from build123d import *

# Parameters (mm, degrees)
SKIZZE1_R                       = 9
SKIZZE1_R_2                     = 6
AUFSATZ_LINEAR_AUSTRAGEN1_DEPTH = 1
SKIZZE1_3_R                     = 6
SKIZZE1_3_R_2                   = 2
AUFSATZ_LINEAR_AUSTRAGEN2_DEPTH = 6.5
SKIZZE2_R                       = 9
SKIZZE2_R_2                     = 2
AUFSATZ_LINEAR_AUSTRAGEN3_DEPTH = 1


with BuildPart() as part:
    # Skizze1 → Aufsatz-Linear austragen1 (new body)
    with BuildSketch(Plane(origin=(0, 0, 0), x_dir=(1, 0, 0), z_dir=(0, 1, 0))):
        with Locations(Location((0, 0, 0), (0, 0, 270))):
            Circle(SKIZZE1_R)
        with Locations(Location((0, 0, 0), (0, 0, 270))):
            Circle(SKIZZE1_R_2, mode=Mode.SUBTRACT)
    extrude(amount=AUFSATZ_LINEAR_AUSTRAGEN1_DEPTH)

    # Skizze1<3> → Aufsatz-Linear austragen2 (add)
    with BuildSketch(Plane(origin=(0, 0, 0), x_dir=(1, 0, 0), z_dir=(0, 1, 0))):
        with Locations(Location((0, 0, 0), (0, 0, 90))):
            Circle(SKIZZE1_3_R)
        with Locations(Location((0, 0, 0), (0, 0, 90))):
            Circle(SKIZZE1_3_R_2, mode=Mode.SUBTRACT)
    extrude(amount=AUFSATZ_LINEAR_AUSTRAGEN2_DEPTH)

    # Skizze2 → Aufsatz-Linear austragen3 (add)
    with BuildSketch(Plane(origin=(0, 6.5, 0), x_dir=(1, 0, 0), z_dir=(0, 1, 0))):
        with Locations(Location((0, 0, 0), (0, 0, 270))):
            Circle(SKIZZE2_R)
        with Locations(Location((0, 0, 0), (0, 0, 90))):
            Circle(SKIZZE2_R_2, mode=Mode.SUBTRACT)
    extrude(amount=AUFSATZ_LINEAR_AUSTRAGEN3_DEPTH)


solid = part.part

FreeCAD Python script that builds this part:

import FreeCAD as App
import Part
import Sketcher

V = App.Vector
Q = App.Units.Quantity

doc = App.newDocument("Part")
body = doc.addObject("PartDesign::Body", "Body")

# Sketch on XZ plane
sketch1 = body.newObject("Sketcher::SketchObject", "Sketch")
sketch1.AttachmentSupport = (doc.getObject("XZ_Plane"), [""])
sketch1.MapMode = "FlatFace"
sketch1.addGeometry([
    Part.Circle(V(0, 0, 0), V(0, 0, 1), 9),
    Part.Circle(V(0, 0, 0), V(0, 0, 1), 6),
], False)
sketch1.addConstraint([
    Sketcher.Constraint("Coincident", 0, 3, -1, 1),
    Sketcher.Constraint("Coincident", 1, 3, -1, 1),
    Sketcher.Constraint("Diameter", 0, Q("18 mm")),
    Sketcher.Constraint("Diameter", 1, Q("12 mm")),
])
pad1 = body.newObject("PartDesign::Pad", "Pad")
pad1.Profile = sketch1
pad1.Length = 1
pad1.Reversed = True

# Sketch on XZ plane
sketch2 = body.newObject("Sketcher::SketchObject", "Sketch001")
sketch2.AttachmentSupport = (doc.getObject("XZ_Plane"), [""])
sketch2.MapMode = "FlatFace"
sketch2.addGeometry([
    Part.Circle(V(0, 0, 0), V(0, 0, 1), 6),
    Part.Circle(V(0, 0, 0), V(0, 0, 1), 2),
], False)
sketch2.addConstraint([
    Sketcher.Constraint("Coincident", 0, 3, -1, 1),
    Sketcher.Constraint("Coincident", 1, 3, -1, 1),
    Sketcher.Constraint("Diameter", 0, Q("12 mm")),
    Sketcher.Constraint("Diameter", 1, Q("4 mm")),
])
pad2 = body.newObject("PartDesign::Pad", "Pad001")
pad2.Profile = sketch2
pad2.Length = 6.5
pad2.Reversed = True

# Sketch on XZ plane
sketch3 = body.newObject("Sketcher::SketchObject", "Sketch002")
sketch3.AttachmentSupport = (doc.getObject("XZ_Plane"), [""])
sketch3.MapMode = "FlatFace"
sketch3.AttachmentOffset = App.Placement(V(0, 0, -6.5), App.Rotation())
sketch3.addGeometry([
    Part.Circle(V(0, 0, 0), V(0, 0, 1), 9),
    Part.Circle(V(0, 0, 0), V(0, 0, 1), 2),
], False)
sketch3.addConstraint([
    Sketcher.Constraint("Coincident", 0, 3, -1, 1),
    Sketcher.Constraint("Coincident", 1, 3, -1, 1),
    Sketcher.Constraint("Diameter", 0, Q("18 mm")),
    Sketcher.Constraint("Diameter", 1, Q("4 mm")),
])
pad3 = body.newObject("PartDesign::Pad", "Pad002")
pad3.Profile = sketch3
pad3.Length = 1
pad3.Reversed = True

doc.recompute()
